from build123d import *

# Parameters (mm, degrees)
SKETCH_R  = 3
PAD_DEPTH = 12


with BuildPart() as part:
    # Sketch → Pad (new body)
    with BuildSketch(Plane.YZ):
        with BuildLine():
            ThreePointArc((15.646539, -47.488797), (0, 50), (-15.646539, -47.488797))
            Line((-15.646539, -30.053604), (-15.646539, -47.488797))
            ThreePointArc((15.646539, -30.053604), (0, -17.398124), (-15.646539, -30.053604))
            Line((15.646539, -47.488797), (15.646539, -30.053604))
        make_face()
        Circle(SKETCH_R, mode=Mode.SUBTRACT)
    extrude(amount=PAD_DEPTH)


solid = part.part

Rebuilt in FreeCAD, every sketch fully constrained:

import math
import FreeCAD as App
import Part
import Sketcher

V = App.Vector
Q = App.Units.Quantity

doc = App.newDocument("Part")
body = doc.addObject("PartDesign::Body", "Body")

# Sketch on YZ plane
sketch1 = body.newObject("Sketcher::SketchObject", "Sketch")
sketch1.AttachmentSupport = (doc.getObject("YZ_Plane"), [""])
sketch1.MapMode = "FlatFace"
sketch1.addGeometry([
    Part.ArcOfCircle(Part.Circle(V(0, 0, 0), V(0, 0, 1), 50), math.radians(-72), math.radians(252)),  # 0
    Part.LineSegment(V(-15.6, -47.5, 0), V(-15.6, -30.1, 0)),  # 1
    Part.ArcOfCircle(Part.Circle(V(0, -33.4, 0), V(0, 0, 1), 16), math.radians(12), math.radians(168)),  # 2
    Part.LineSegment(V(15.6, -30.1, 0), V(15.6, -47.5, 0)),  # 3
    Part.Circle(V(0, 0, 0), V(0, 0, 1), 3),  # 4
], False)
sketch1.addConstraint([
    Sketcher.Constraint("Coincident", 0, 2, 1, 1),
    Sketcher.Constraint("Coincident", 1, 2, 2, 2),
    Sketcher.Constraint("Coincident", 2, 1, 3, 1),
    Sketcher.Constraint("Coincident", 3, 2, 0, 1),
    Sketcher.Constraint("Vertical", 1),
    Sketcher.Constraint("Vertical", 3),
    Sketcher.Constraint("Coincident", 0, 3, -1, 1),
    Sketcher.Constraint("Coincident", 4, 3, -1, 1),
    Sketcher.Constraint("Symmetric", 1, 2, 2, 1, -2),
    Sketcher.Constraint("Diameter", 4, Q("6 mm")),
    Sketcher.Constraint("Radius", 0, Q("50 mm")),
    Sketcher.Constraint("Radius", 2, Q("16 mm")),
    Sketcher.Constraint("DistanceY", 1, 1, 1, 2, Q("17.435193 mm")),
    Sketcher.Constraint("DistanceX", 0, 2, -1, 1, Q("15.646539 mm")),
])
pad1 = body.newObject("PartDesign::Pad", "Pad")
pad1.Profile = sketch1
pad1.Length = 12

doc.recompute()
